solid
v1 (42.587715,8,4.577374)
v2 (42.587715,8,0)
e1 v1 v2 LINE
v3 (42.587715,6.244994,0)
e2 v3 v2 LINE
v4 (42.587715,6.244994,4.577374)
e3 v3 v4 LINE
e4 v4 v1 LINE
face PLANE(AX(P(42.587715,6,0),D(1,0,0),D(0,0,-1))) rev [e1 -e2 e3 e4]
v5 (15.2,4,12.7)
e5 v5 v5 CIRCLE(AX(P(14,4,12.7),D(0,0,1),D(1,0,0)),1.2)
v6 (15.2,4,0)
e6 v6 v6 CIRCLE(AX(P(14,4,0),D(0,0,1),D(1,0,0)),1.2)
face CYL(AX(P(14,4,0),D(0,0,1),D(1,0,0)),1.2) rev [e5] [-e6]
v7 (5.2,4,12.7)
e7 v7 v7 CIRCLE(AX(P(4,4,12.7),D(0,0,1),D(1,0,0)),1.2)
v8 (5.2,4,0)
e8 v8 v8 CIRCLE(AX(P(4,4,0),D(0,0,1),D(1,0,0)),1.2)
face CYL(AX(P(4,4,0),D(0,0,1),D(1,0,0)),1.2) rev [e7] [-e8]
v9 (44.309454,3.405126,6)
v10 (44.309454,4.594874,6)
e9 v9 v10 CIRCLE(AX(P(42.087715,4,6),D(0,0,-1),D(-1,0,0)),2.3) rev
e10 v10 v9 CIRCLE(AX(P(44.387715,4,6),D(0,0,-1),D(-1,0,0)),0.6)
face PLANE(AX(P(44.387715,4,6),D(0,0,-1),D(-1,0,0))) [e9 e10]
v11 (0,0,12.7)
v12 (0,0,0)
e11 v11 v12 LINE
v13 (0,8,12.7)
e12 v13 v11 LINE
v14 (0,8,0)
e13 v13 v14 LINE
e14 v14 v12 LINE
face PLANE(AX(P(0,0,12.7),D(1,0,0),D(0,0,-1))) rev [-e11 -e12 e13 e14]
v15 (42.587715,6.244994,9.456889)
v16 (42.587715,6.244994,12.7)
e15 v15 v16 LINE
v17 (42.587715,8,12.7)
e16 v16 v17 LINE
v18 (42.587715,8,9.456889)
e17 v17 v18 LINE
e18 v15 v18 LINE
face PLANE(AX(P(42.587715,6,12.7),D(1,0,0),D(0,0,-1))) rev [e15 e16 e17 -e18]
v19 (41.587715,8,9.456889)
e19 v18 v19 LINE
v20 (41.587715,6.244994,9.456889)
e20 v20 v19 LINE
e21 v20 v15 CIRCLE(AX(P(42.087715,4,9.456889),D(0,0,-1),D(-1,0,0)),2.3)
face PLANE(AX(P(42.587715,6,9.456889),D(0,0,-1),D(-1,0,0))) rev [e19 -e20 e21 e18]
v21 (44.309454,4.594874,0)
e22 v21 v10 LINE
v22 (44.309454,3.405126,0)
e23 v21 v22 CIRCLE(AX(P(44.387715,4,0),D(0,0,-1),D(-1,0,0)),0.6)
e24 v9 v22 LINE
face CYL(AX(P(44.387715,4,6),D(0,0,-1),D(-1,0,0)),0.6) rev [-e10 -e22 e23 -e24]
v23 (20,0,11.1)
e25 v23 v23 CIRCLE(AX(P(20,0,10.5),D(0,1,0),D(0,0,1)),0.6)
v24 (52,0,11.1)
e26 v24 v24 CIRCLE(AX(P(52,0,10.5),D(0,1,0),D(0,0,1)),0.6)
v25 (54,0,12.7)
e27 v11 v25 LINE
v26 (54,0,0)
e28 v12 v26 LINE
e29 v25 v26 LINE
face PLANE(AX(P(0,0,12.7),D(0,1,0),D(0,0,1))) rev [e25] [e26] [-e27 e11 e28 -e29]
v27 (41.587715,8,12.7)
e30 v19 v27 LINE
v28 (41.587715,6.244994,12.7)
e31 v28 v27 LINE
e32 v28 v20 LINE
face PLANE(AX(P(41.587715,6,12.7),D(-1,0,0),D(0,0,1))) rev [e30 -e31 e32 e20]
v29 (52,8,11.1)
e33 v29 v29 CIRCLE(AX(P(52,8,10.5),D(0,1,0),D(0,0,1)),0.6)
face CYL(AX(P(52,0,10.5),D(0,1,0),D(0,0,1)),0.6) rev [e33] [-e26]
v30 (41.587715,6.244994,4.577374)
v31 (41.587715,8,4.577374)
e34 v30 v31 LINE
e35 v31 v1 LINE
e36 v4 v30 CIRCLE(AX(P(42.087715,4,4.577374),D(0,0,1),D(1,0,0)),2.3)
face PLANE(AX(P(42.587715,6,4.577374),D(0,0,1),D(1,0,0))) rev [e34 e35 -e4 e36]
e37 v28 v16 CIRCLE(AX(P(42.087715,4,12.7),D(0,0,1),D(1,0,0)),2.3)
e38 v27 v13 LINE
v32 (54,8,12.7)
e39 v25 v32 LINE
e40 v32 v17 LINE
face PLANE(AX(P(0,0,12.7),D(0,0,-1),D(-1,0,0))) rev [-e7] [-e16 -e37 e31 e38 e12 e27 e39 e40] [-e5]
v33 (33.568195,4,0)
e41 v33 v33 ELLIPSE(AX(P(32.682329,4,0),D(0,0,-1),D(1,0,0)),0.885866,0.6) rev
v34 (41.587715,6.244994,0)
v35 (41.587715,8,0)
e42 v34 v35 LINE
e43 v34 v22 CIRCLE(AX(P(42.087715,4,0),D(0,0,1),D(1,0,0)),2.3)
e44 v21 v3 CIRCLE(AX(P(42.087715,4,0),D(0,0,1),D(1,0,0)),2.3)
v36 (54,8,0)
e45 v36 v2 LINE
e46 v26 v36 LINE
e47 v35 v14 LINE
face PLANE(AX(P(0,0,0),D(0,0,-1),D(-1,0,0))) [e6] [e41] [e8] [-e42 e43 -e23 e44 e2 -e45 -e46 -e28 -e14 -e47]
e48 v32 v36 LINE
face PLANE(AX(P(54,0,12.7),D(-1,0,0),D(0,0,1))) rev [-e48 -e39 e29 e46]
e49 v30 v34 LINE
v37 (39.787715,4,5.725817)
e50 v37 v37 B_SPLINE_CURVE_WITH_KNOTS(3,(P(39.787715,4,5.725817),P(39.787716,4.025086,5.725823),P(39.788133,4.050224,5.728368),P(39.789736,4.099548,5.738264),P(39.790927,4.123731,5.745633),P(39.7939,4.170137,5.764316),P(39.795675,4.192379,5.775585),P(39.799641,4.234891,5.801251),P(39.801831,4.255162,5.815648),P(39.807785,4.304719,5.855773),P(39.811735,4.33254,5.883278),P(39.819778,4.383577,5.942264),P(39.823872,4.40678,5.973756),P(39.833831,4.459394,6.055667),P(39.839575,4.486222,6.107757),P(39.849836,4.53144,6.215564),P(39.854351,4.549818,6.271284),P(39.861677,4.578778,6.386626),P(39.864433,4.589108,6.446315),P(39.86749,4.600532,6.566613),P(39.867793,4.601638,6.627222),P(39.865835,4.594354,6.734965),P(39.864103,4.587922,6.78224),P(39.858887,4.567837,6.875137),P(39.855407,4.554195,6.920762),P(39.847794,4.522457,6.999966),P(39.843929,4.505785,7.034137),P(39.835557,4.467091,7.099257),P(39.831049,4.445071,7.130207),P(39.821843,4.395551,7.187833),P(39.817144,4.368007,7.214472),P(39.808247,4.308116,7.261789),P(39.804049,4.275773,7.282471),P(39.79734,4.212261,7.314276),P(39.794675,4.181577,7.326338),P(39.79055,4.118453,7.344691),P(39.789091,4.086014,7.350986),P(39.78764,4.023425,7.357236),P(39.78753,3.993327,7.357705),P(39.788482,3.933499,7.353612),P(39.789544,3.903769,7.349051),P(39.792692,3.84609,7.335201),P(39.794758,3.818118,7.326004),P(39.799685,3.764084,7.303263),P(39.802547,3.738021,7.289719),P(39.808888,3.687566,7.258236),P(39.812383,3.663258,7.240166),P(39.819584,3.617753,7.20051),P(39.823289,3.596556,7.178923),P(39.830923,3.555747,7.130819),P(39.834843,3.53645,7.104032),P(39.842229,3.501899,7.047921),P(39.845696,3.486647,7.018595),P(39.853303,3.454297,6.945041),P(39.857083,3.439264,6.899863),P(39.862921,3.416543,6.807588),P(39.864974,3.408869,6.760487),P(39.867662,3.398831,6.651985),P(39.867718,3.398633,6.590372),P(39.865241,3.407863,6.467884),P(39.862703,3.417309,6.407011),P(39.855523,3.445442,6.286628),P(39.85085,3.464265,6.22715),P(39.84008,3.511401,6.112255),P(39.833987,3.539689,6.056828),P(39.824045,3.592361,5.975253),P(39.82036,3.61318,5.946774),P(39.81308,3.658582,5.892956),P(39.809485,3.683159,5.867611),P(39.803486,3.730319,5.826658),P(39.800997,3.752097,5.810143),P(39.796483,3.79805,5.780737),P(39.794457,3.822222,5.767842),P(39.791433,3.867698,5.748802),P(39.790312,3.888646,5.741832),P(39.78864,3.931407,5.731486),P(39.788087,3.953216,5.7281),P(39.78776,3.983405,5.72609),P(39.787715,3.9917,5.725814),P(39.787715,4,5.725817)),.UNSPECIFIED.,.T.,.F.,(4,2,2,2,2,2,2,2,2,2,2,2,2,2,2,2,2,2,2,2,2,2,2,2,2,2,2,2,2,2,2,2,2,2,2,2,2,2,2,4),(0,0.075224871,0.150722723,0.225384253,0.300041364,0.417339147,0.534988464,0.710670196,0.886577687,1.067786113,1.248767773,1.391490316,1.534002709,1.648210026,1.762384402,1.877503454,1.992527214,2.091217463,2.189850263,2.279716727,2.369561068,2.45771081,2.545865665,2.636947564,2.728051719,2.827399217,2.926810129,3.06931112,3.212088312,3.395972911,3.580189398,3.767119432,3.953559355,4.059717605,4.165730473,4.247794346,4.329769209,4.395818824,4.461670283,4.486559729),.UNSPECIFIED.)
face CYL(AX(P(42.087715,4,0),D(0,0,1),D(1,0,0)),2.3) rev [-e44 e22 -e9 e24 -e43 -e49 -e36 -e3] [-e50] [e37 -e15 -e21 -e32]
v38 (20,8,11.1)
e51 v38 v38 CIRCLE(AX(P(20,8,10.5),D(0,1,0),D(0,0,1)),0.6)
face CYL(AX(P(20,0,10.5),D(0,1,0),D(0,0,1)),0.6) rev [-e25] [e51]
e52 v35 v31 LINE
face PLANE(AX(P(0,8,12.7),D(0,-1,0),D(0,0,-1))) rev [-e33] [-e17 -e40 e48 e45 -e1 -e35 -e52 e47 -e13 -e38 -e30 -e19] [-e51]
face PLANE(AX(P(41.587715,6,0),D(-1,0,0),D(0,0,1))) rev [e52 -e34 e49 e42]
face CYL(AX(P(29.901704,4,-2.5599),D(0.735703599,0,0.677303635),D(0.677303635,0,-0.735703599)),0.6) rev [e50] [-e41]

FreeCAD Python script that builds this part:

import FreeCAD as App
import Part
import Sketcher
from FreeCAD import Vector
Q = App.Units.Quantity

doc = App.newDocument("Part")
body = doc.addObject("PartDesign::Body", "Body")

# Sketch on XY plane
sketch1 = doc.addObject("Sketcher::SketchObject", "Sketch")
body.addObject(sketch1)
sketch1.AttachmentSupport = (doc.XY_Plane, [""])
sketch1.MapMode = "FlatFace"
sketch1.addGeometry([
    Part.LineSegment(Vector(0, 8, 0), Vector(0, 0, 0)),
    Part.LineSegment(Vector(0, 0, 0), Vector(54, 0, 0)),
    Part.LineSegment(Vector(54, 0, 0), Vector(54, 8, 0)),
    Part.LineSegment(Vector(54, 8, 0), Vector(0, 8, 0)),
], False)
sketch1.addConstraint([
    Sketcher.Constraint("Coincident", 0, 2, 1, 1),
    Sketcher.Constraint("Coincident", 1, 2, 2, 1),
    Sketcher.Constraint("Coincident", 2, 2, 3, 1),
    Sketcher.Constraint("Coincident", 3, 2, 0, 1),
    Sketcher.Constraint("Vertical", 0),
    Sketcher.Constraint("Horizontal", 1),
    Sketcher.Constraint("Vertical", 2),
    Sketcher.Constraint("Horizontal", 3),
    Sketcher.Constraint("Coincident", 0, 2, -1, 1),
    Sketcher.Constraint("DistanceX", 1, 1, 1, 2, Q("54 mm")),
    Sketcher.Constraint("DistanceY", 0, 2, 0, 1, Q("8 mm")),
])
pad1 = doc.addObject("PartDesign::Pad", "Pad")
body.addObject(pad1)
pad1.Profile = sketch1
pad1.Length = 12.7

# Sketch on XZ plane
sketch2 = doc.addObject("Sketcher::SketchObject", "Sketch001")
body.addObject(sketch2)
sketch2.AttachmentSupport = (doc.XZ_Plane, [""])
sketch2.MapMode = "FlatFace"
sketch2.AttachmentOffset = App.Placement(Vector(0, 0, -8), App.Rotation())
sketch2.addGeometry([
    Part.LineSegment(Vector(41.6, 9.5, 0), Vector(41.6, 12.7, 0)),  # 0
    Part.LineSegment(Vector(41.6, 12.7, 0), Vector(42.6, 12.7, 0)),  # 1
    Part.LineSegment(Vector(42.6, 12.7, 0), Vector(42.6, 9.5, 0)),  # 2
    Part.LineSegment(Vector(42.6, 9.5, 0), Vector(41.6, 9.5, 0)),  # 3
    Part.LineSegment(Vector(41.6, 0, 0), Vector(41.6, 4.6, 0)),  # 4
    Part.LineSegment(Vector(41.6, 4.6, 0), Vector(42.6, 4.6, 0)),  # 5
    Part.LineSegment(Vector(42.6, 4.6, 0), Vector(42.6, 0, 0)),  # 6
    Part.LineSegment(Vector(42.6, 0, 0), Vector(41.6, 0, 0)),  # 7
], False)
sketch2.addConstraint([
    Sketcher.Constraint("Coincident", 0, 2, 1, 1),
    Sketcher.Constraint("Coincident", 1, 2, 2, 1),
    Sketcher.Constraint("Coincident", 2, 2, 3, 1),
    Sketcher.Constraint("Coincident", 3, 2, 0, 1),
    Sketcher.Constraint("Coincident", 4, 2, 5, 1),
    Sketcher.Constraint("Coincident", 5, 2, 6, 1),
    Sketcher.Constraint("Coincident", 6, 2, 7, 1),
    Sketcher.Constraint("Coincident", 7, 2, 4, 1),
    Sketcher.Constraint("Vertical", 0),
    Sketcher.Constraint("Horizontal", 1),
    Sketcher.Constraint("Vertical", 2),
    Sketcher.Constraint("Horizontal", 3),
    Sketcher.Constraint("Vertical", 4),
    Sketcher.Constraint("Horizontal", 5),
    Sketcher.Constraint("Vertical", 6),
    Sketcher.Constraint("Horizontal", 7),
    Sketcher.Constraint("PointOnObject", 6, 2, -1),
    Sketcher.Constraint("Vertical", 3, 2, 4, 2),
    Sketcher.Constraint("Vertical", 2, 2, 5, 2),
    Sketcher.Constraint("DistanceX", 1, 1, 1, 2, Q("1 mm")),
    Sketcher.Constraint("DistanceY", -1, 1, 0, 2, Q("12.7 mm")),
    Sketcher.Constraint("DistanceY", 0, 1, 0, 2, Q("3.243111 mm")),
    Sketcher.Constraint("DistanceY", 4, 1, 4, 2, Q("4.577374 mm")),
    Sketcher.Constraint("DistanceX", -1, 1, 0, 2, Q("41.587715 mm")),
])
pocket1 = doc.addObject("PartDesign::Pocket", "Pocket")
body.addObject(pocket1)
pocket1.Profile = sketch2
pocket1.Length = 2
pocket1.Reversed = True

# Sketch on XY plane
sketch3 = doc.addObject("Sketcher::SketchObject", "Sketch002")
body.addObject(sketch3)
sketch3.AttachmentSupport = (doc.XY_Plane, [""])
sketch3.MapMode = "FlatFace"
sketch3.AttachmentOffset = App.Placement(Vector(0, 0, 12.7), App.Rotation())
sketch3.addGeometry(Part.Circle(Vector(42.1, 4, 0), Vector(0, 0, 1), 2.3), False)
sketch3.addConstraint([
    Sketcher.Constraint("Diameter", 0, Q("4.6 mm")),
    Sketcher.Constraint("DistanceY", -1, 1, 0, 3, Q("4 mm")),
    Sketcher.Constraint("DistanceX", -1, 1, 0, 3, Q("42.087715 mm")),
])
pocket2 = doc.addObject("PartDesign::Pocket", "Pocket001")
body.addObject(pocket2)
pocket2.Profile = sketch3
pocket2.Type = "ThroughAll"

# Sketch on XZ plane
sketch4 = doc.addObject("Sketcher::SketchObject", "Sketch003")
body.addObject(sketch4)
sketch4.AttachmentSupport = (doc.XZ_Plane, [""])
sketch4.MapMode = "FlatFace"
sketch4.AttachmentOffset = App.Placement(Vector(0, 0, -8), App.Rotation())
sketch4.addGeometry([
    Part.Circle(Vector(52, 10.5, 0), Vector(0, 0, 1), 0.6),
    Part.Circle(Vector(20, 10.5, 0), Vector(0, 0, 1), 0.6),
], False)
sketch4.addConstraint([
    Sketcher.Constraint("Equal", 0, 1),
    Sketcher.Constraint("Horizontal", 0, 3, 1, 3),
    Sketcher.Constraint("Diameter", 0, Q("1.2 mm")),
    Sketcher.Constraint("DistanceX", -1, 1, 0, 3, Q("52 mm")),
    Sketcher.Constraint("DistanceX", -1, 1, 1, 3, Q("20 mm")),
    Sketcher.Constraint("DistanceY", -1, 1, 0, 3, Q("10.5 mm")),
])
pocket3 = doc.addObject("PartDesign::Pocket", "Pocket002")
body.addObject(pocket3)
pocket3.Profile = sketch4
pocket3.Type = "ThroughAll"
pocket3.Reversed = True

# Sketch on XY plane
sketch5 = doc.addObject("Sketcher::SketchObject", "Sketch004")
body.addObject(sketch5)
sketch5.AttachmentSupport = (doc.XY_Plane, [""])
sketch5.MapMode = "FlatFace"
sketch5.AttachmentOffset = App.Placement(Vector(0, 0, 12.7), App.Rotation())
sketch5.addGeometry([
    Part.Circle(Vector(4, 4, 0), Vector(0, 0, 1), 1.2),
    Part.Circle(Vector(14, 4, 0), Vector(0, 0, 1), 1.2),
], False)
sketch5.addConstraint([
    Sketcher.Constraint("Equal", 0, 1),
    Sketcher.Constraint("Horizontal", 0, 3, 1, 3),
    Sketcher.Constraint("Diameter", 0, Q("2.4 mm")),
    Sketcher.Constraint("DistanceX", -1, 1, 0, 3, Q("4 mm")),
    Sketcher.Constraint("DistanceY", -1, 1, 0, 3, Q("4 mm")),
    Sketcher.Constraint("DistanceX", -1, 1, 1, 3, Q("14 mm")),
])
pocket4 = doc.addObject("PartDesign::Pocket", "Pocket003")
body.addObject(pocket4)
pocket4.Profile = sketch5
pocket4.Type = "ThroughAll"

# Sketch on an angled plane
sketch6 = doc.addObject("Sketcher::SketchObject", "Sketch005")
body.addObject(sketch6)
sketch6.Placement = App.Placement(Vector(25.944559, 0, 23.885087), App.Rotation(Vector(-0.677303635, 0, 0.735703599), Vector(0, 1, 0), Vector(-0.735703599, 0, -0.677303635), "ZXY"))
sketch6.addGeometry(Part.Circle(Vector(-22.1, 4, 0), Vector(0, 0, 1), 0.6), False)
sketch6.addConstraint([
    Sketcher.Constraint("Diameter", 0, Q("1.2 mm")),
    Sketcher.Constraint("DistanceY", -1, 1, 0, 3, Q("4 mm")),
    Sketcher.Constraint("DistanceX", 0, 3, -1, 1, Q("22.13586 mm")),
])
pocket5 = doc.addObject("PartDesign::Pocket", "Pocket004")
body.addObject(pocket5)
pocket5.Profile = sketch6
pocket5.Length = 15
pocket5.Reversed = True

# Sketch on XY plane
sketch7 = doc.addObject("Sketcher::SketchObject", "Sketch006")
body.addObject(sketch7)
sketch7.AttachmentSupport = (doc.XY_Plane, [""])
sketch7.MapMode = "FlatFace"
sketch7.addGeometry(Part.Circle(Vector(44.4, 4, 0), Vector(0, 0, 1), 0.6), False)
sketch7.addConstraint([
    Sketcher.Constraint("Diameter", 0, Q("1.2 mm")),
    Sketcher.Constraint("DistanceY", -1, 1, 0, 3, Q("4 mm")),
    Sketcher.Constraint("DistanceX", -1, 1, 0, 3, Q("44.387715 mm")),
])
pocket6 = doc.addObject("PartDesign::Pocket", "Pocket005")
body.addObject(pocket6)
pocket6.Profile = sketch7
pocket6.Length = 6
pocket6.Reversed = True

doc.recompute()
